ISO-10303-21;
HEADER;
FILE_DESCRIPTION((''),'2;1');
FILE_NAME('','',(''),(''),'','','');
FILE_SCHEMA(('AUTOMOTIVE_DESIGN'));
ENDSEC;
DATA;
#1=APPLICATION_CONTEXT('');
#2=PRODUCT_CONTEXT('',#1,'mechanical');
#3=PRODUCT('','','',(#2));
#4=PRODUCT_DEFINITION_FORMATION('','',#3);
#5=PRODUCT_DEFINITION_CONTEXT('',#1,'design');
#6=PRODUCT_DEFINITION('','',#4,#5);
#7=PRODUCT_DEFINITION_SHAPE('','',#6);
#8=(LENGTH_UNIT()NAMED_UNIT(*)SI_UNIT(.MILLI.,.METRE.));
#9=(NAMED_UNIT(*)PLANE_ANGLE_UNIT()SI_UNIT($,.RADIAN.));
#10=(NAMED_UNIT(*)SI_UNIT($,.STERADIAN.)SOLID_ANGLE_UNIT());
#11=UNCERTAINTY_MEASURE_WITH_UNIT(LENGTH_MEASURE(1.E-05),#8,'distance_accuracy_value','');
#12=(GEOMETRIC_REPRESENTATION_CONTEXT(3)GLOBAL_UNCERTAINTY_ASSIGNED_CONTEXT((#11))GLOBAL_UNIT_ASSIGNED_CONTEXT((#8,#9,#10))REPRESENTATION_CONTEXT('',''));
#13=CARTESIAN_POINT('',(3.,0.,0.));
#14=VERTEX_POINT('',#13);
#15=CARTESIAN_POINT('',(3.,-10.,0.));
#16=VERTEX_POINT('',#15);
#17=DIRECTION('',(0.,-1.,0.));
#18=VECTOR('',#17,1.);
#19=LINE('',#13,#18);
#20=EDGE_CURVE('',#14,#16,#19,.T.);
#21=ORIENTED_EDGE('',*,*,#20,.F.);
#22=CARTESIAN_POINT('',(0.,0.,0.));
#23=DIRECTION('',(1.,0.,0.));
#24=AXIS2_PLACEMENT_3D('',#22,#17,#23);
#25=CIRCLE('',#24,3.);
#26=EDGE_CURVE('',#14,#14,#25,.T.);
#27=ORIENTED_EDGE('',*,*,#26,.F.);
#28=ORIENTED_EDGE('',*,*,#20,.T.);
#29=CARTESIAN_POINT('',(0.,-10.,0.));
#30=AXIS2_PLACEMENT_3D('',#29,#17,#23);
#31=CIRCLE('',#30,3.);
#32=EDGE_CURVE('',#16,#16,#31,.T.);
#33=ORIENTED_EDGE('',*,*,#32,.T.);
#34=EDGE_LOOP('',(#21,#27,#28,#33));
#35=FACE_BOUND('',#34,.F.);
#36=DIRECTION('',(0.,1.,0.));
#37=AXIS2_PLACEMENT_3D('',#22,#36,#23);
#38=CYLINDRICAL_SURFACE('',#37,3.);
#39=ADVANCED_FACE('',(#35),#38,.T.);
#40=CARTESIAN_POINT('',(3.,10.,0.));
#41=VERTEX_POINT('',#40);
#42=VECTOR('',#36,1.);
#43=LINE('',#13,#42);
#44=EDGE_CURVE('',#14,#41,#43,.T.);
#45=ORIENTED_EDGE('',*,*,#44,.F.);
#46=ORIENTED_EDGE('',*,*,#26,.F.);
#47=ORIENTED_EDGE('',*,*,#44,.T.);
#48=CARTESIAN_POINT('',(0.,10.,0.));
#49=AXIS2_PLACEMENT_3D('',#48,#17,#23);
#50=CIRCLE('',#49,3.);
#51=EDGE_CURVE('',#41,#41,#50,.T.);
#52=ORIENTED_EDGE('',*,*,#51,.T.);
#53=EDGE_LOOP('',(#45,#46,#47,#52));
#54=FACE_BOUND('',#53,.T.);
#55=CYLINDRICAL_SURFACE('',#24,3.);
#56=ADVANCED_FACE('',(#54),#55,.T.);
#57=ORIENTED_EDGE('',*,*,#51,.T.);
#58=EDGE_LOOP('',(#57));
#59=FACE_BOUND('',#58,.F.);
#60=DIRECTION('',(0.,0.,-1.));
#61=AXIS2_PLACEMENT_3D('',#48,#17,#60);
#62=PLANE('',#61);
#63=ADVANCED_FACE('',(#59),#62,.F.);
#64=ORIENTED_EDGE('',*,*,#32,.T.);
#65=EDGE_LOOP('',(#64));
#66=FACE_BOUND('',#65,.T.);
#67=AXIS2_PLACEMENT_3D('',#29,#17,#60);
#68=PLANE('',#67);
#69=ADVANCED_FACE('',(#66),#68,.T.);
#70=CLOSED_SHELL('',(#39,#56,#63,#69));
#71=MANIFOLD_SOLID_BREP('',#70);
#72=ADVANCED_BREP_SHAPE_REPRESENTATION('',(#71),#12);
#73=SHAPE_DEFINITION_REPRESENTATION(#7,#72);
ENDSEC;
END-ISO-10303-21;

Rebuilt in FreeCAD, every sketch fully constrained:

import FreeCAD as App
import Part
import Sketcher

V = App.Vector
Q = App.Units.Quantity

doc = App.newDocument("Part")
params = doc.addObject("Spreadsheet::Sheet", "Params")
for row, (alias, value) in enumerate([
    ("sketch1_diameter", "6 mm"),
    ("pad1_length", "20 mm"),
], start=1):
    params.set(f"A{row}", alias)
    params.set(f"B{row}", "=" + value)
    params.setAlias(f"B{row}", alias)

body = doc.addObject("PartDesign::Body", "Body")

sketch1 = doc.addObject("Sketcher::SketchObject", "Sketch")
body.addObject(sketch1)
sketch1.AttachmentSupport = (doc.XZ_Plane, [""])
sketch1.MapMode = "FlatFace"
sketch1.addGeometry(Part.Circle(V(0, 0, 0), V(0, 0, 1), 3), False)
sketch1.addConstraint(Sketcher.Constraint("Coincident", 0, 3, -1, 1))
sketch1.addConstraint(Sketcher.Constraint("Diameter", 0, Q("6 mm")))
sketch1.setExpression("Constraints[1]", "Params.sketch1_diameter")
pad1 = doc.addObject("PartDesign::Pad", "Pad")
body.addObject(pad1)
pad1.Profile = sketch1
pad1.setExpression("Length", "Params.pad1_length")
pad1.Midplane = True

doc.recompute()
